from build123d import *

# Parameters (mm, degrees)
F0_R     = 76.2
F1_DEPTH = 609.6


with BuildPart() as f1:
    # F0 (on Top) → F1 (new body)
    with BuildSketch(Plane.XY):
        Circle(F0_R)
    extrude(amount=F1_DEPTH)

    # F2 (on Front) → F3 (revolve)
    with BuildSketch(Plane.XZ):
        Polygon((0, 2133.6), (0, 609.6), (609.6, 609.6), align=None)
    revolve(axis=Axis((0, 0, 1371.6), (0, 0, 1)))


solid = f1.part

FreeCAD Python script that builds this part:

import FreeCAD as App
import Part
import Sketcher

V = App.Vector
Q = App.Units.Quantity


def add_polygon(sketch, points):
    """Adds a closed chain of lines whose ends are joined by coincident constraints."""
    first, n = sketch.GeometryCount, len(points)
    for a, b in zip(points, points[1:] + points[:1]):
        sketch.addGeometry(Part.LineSegment(App.Vector(*a, 0), App.Vector(*b, 0)), False)
    for i in range(n):
        sketch.addConstraint(Sketcher.Constraint("Coincident", first + i, 2, first + (i + 1) % n, 1))

doc = App.newDocument("Part")
body = doc.addObject("PartDesign::Body", "Body")

# Sketch on XY plane
sketch1 = doc.addObject("Sketcher::SketchObject", "Sketch")
body.addObject(sketch1)
sketch1.AttachmentSupport = (doc.XY_Plane, [""])
sketch1.MapMode = "FlatFace"
sketch1.addGeometry(Part.Circle(V(0, 0, 0), V(0, 0, 1), 76), False)
sketch1.addConstraint([
    Sketcher.Constraint("Coincident", 0, 3, -1, 1),
    Sketcher.Constraint("Diameter", 0, Q("6 in")),
])
pad1 = doc.addObject("PartDesign::Pad", "Pad")
body.addObject(pad1)
pad1.Profile = sketch1
pad1.Length = Q("24 in")

# Sketch on XZ plane
sketch2 = doc.addObject("Sketcher::SketchObject", "Sketch001")
body.addObject(sketch2)
sketch2.AttachmentSupport = (doc.XZ_Plane, [""])
sketch2.MapMode = "FlatFace"
add_polygon(sketch2, [(0, 2134), (0, 610), (610, 610)])  # lines 0-2
sketch2.addConstraint([
    Sketcher.Constraint("Vertical", 0),
    Sketcher.Constraint("Horizontal", 1),
    Sketcher.Constraint("PointOnObject", 0, 2, -2),
    Sketcher.Constraint("DistanceX", 1, 1, 1, 2, Q("24 in")),
    Sketcher.Constraint("DistanceY", 0, 2, 0, 1, Q("60 in")),
    Sketcher.Constraint("DistanceY", -1, 1, 0, 2, Q("24 in")),
])
revolution = doc.addObject("PartDesign::Revolution", "Revolution")
body.addObject(revolution)
revolution.Profile = sketch2
revolution.ReferenceAxis = (sketch2, ["V_Axis"])
revolution.Angle = 360

doc.recompute()
